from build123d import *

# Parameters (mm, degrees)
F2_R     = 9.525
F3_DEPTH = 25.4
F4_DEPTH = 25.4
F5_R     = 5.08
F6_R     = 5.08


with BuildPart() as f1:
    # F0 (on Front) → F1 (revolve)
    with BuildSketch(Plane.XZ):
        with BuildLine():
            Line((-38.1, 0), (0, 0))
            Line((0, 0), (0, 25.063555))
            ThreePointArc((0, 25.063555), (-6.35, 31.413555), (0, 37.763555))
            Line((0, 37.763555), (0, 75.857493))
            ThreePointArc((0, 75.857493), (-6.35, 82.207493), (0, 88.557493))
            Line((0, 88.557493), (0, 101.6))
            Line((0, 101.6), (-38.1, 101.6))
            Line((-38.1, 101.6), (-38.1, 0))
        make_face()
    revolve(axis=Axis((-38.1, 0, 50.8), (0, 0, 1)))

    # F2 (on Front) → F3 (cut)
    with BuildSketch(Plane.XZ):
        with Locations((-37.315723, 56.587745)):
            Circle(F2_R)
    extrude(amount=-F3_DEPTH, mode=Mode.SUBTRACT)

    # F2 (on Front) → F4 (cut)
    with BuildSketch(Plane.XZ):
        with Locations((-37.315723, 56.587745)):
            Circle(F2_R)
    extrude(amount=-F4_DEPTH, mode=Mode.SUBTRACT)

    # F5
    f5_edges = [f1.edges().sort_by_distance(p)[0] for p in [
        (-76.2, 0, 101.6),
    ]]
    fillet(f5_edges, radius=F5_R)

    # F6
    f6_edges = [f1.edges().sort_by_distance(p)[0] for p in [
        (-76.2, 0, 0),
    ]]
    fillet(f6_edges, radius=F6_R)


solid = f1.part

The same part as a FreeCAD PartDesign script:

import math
import FreeCAD as App
import Part
import Sketcher
Q = App.Units.Quantity


def edges_at(feature, points):
    """Names of the edges that pass closest to the given points."""
    edges = feature.Shape.Edges
    near = lambda p: min(range(len(edges)), key=lambda i: edges[i].distToShape(Part.Vertex(*p))[0])
    return sorted({f"Edge{near(p) + 1}" for p in points})

doc = App.newDocument("Part")
body = doc.addObject("PartDesign::Body", "Body")

# Sketch on XZ plane
sketch1 = body.newObject("Sketcher::SketchObject", "Sketch")
sketch1.AttachmentSupport = (doc.getObject("XZ_Plane"), [""])
sketch1.MapMode = "FlatFace"
sketch1.addGeometry([
    Part.LineSegment(App.Vector(-38.1, 0, 0), App.Vector(0, 0, 0)),  # 0
    Part.LineSegment(App.Vector(0, 0, 0), App.Vector(0, 25.063555, 0)),  # 1
    Part.ArcOfCircle(Part.Circle(App.Vector(0, 31.413555, 0), App.Vector(0, 0, 1), 6.35), math.radians(90), math.radians(270)),  # 2
    Part.LineSegment(App.Vector(0, 37.763555, 0), App.Vector(0, 75.857493, 0)),  # 3
    Part.ArcOfCircle(Part.Circle(App.Vector(0, 82.207493, 0), App.Vector(0, 0, 1), 6.35), math.radians(90), math.radians(270)),  # 4
    Part.LineSegment(App.Vector(0, 88.557493, 0), App.Vector(0, 101.6, 0)),  # 5
    Part.LineSegment(App.Vector(0, 101.6, 0), App.Vector(-38.1, 101.6, 0)),  # 6
    Part.LineSegment(App.Vector(-38.1, 101.6, 0), App.Vector(-38.1, 0, 0)),  # 7
], False)
sketch1.addGeometry(Part.LineSegment(App.Vector(-38.1, 0, 0), App.Vector(-38.1, 101.6, 0)), True)  # axis
sketch1.addConstraint([
    Sketcher.Constraint("Coincident", 0, 2, 1, 1),
    Sketcher.Constraint("Coincident", 1, 2, 2, 2),
    Sketcher.Constraint("Coincident", 2, 1, 3, 1),
    Sketcher.Constraint("Coincident", 3, 2, 4, 2),
    Sketcher.Constraint("Coincident", 4, 1, 5, 1),
    Sketcher.Constraint("Coincident", 5, 2, 6, 1),
    Sketcher.Constraint("Coincident", 6, 2, 7, 1),
    Sketcher.Constraint("Coincident", 7, 2, 0, 1),
    Sketcher.Constraint("Horizontal", 0),
    Sketcher.Constraint("Vertical", 1),
    Sketcher.Constraint("Vertical", 3),
    Sketcher.Constraint("Vertical", 5),
    Sketcher.Constraint("Horizontal", 6),
    Sketcher.Constraint("Vertical", 7),
    Sketcher.Constraint("Vertical", 8),
    Sketcher.Constraint("Coincident", 0, 2, -1, 1),
    Sketcher.Constraint("Coincident", 8, 1, 7, 2),
    Sketcher.Constraint("Equal", 2, 4),
    Sketcher.Constraint("PointOnObject", 2, 3, -2),
    Sketcher.Constraint("PointOnObject", 4, 3, -2),
    Sketcher.Constraint("PointOnObject", 2, 1, -2),
    Sketcher.Constraint("PointOnObject", 4, 1, -2),
    Sketcher.Constraint("Horizontal", 5, 2, 8, 2),
    Sketcher.Constraint("DistanceY", 7, 2, 7, 1, Q("4 in")),
    Sketcher.Constraint("Radius", 2, Q("0.25 in")),
    Sketcher.Constraint("DistanceX", 0, 1, 0, 2, Q("1.5 in")),
    Sketcher.Constraint("DistanceY", 3, 1, 3, 2, Q("38.093938 mm")),
    Sketcher.Constraint("DistanceY", 1, 1, 1, 2, Q("25.063555 mm")),
])
revolution = body.newObject("PartDesign::Revolution", "Revolution")
revolution.Profile = sketch1
revolution.ReferenceAxis = (sketch1, ["Axis0"])
revolution.Angle = 360

# Sketch on XZ plane
sketch2 = body.newObject("Sketcher::SketchObject", "Sketch001")
sketch2.AttachmentSupport = (doc.getObject("XZ_Plane"), [""])
sketch2.MapMode = "FlatFace"
sketch2.addGeometry(Part.Circle(App.Vector(-37.315723, 56.587745, 0), App.Vector(0, 0, 1), 9.525), False)
sketch2.addConstraint([
    Sketcher.Constraint("Diameter", 0, Q("0.75 in")),
    Sketcher.Constraint("DistanceX", 0, 3, -1, 1, Q("37.315723 mm")),
    Sketcher.Constraint("DistanceY", -1, 1, 0, 3, Q("56.587745 mm")),
])
pocket1 = body.newObject("PartDesign::Pocket", "Pocket")
pocket1.Profile = sketch2
pocket1.Length = Q("1 in")

# Sketch on XZ plane
sketch3 = body.newObject("Sketcher::SketchObject", "Sketch002")
sketch3.AttachmentSupport = (doc.getObject("XZ_Plane"), [""])
sketch3.MapMode = "FlatFace"
sketch3.addGeometry(Part.Circle(App.Vector(-37.315723, 56.587745, 0), App.Vector(0, 0, 1), 9.525), False)
sketch3.addConstraint([
    Sketcher.Constraint("Diameter", 0, Q("0.75 in")),
    Sketcher.Constraint("DistanceX", 0, 3, -1, 1, Q("37.315723 mm")),
    Sketcher.Constraint("DistanceY", -1, 1, 0, 3, Q("56.587745 mm")),
])
pocket2 = body.newObject("PartDesign::Pocket", "Pocket001")
pocket2.Profile = sketch3
pocket2.Length = Q("1 in")
doc.recompute()

fillet = body.newObject("PartDesign::Fillet", "Fillet")
fillet.Base = (pocket2, edges_at(pocket2, [(-76.2, 0, 101.6)]))
fillet.Radius = Q("0.2 in")
doc.recompute()

fillet2 = body.newObject("PartDesign::Fillet", "Fillet001")
fillet2.Base = (fillet, edges_at(fillet, [(-76.2, 0, 0)]))
fillet2.Radius = Q("0.2 in")

doc.recompute()
